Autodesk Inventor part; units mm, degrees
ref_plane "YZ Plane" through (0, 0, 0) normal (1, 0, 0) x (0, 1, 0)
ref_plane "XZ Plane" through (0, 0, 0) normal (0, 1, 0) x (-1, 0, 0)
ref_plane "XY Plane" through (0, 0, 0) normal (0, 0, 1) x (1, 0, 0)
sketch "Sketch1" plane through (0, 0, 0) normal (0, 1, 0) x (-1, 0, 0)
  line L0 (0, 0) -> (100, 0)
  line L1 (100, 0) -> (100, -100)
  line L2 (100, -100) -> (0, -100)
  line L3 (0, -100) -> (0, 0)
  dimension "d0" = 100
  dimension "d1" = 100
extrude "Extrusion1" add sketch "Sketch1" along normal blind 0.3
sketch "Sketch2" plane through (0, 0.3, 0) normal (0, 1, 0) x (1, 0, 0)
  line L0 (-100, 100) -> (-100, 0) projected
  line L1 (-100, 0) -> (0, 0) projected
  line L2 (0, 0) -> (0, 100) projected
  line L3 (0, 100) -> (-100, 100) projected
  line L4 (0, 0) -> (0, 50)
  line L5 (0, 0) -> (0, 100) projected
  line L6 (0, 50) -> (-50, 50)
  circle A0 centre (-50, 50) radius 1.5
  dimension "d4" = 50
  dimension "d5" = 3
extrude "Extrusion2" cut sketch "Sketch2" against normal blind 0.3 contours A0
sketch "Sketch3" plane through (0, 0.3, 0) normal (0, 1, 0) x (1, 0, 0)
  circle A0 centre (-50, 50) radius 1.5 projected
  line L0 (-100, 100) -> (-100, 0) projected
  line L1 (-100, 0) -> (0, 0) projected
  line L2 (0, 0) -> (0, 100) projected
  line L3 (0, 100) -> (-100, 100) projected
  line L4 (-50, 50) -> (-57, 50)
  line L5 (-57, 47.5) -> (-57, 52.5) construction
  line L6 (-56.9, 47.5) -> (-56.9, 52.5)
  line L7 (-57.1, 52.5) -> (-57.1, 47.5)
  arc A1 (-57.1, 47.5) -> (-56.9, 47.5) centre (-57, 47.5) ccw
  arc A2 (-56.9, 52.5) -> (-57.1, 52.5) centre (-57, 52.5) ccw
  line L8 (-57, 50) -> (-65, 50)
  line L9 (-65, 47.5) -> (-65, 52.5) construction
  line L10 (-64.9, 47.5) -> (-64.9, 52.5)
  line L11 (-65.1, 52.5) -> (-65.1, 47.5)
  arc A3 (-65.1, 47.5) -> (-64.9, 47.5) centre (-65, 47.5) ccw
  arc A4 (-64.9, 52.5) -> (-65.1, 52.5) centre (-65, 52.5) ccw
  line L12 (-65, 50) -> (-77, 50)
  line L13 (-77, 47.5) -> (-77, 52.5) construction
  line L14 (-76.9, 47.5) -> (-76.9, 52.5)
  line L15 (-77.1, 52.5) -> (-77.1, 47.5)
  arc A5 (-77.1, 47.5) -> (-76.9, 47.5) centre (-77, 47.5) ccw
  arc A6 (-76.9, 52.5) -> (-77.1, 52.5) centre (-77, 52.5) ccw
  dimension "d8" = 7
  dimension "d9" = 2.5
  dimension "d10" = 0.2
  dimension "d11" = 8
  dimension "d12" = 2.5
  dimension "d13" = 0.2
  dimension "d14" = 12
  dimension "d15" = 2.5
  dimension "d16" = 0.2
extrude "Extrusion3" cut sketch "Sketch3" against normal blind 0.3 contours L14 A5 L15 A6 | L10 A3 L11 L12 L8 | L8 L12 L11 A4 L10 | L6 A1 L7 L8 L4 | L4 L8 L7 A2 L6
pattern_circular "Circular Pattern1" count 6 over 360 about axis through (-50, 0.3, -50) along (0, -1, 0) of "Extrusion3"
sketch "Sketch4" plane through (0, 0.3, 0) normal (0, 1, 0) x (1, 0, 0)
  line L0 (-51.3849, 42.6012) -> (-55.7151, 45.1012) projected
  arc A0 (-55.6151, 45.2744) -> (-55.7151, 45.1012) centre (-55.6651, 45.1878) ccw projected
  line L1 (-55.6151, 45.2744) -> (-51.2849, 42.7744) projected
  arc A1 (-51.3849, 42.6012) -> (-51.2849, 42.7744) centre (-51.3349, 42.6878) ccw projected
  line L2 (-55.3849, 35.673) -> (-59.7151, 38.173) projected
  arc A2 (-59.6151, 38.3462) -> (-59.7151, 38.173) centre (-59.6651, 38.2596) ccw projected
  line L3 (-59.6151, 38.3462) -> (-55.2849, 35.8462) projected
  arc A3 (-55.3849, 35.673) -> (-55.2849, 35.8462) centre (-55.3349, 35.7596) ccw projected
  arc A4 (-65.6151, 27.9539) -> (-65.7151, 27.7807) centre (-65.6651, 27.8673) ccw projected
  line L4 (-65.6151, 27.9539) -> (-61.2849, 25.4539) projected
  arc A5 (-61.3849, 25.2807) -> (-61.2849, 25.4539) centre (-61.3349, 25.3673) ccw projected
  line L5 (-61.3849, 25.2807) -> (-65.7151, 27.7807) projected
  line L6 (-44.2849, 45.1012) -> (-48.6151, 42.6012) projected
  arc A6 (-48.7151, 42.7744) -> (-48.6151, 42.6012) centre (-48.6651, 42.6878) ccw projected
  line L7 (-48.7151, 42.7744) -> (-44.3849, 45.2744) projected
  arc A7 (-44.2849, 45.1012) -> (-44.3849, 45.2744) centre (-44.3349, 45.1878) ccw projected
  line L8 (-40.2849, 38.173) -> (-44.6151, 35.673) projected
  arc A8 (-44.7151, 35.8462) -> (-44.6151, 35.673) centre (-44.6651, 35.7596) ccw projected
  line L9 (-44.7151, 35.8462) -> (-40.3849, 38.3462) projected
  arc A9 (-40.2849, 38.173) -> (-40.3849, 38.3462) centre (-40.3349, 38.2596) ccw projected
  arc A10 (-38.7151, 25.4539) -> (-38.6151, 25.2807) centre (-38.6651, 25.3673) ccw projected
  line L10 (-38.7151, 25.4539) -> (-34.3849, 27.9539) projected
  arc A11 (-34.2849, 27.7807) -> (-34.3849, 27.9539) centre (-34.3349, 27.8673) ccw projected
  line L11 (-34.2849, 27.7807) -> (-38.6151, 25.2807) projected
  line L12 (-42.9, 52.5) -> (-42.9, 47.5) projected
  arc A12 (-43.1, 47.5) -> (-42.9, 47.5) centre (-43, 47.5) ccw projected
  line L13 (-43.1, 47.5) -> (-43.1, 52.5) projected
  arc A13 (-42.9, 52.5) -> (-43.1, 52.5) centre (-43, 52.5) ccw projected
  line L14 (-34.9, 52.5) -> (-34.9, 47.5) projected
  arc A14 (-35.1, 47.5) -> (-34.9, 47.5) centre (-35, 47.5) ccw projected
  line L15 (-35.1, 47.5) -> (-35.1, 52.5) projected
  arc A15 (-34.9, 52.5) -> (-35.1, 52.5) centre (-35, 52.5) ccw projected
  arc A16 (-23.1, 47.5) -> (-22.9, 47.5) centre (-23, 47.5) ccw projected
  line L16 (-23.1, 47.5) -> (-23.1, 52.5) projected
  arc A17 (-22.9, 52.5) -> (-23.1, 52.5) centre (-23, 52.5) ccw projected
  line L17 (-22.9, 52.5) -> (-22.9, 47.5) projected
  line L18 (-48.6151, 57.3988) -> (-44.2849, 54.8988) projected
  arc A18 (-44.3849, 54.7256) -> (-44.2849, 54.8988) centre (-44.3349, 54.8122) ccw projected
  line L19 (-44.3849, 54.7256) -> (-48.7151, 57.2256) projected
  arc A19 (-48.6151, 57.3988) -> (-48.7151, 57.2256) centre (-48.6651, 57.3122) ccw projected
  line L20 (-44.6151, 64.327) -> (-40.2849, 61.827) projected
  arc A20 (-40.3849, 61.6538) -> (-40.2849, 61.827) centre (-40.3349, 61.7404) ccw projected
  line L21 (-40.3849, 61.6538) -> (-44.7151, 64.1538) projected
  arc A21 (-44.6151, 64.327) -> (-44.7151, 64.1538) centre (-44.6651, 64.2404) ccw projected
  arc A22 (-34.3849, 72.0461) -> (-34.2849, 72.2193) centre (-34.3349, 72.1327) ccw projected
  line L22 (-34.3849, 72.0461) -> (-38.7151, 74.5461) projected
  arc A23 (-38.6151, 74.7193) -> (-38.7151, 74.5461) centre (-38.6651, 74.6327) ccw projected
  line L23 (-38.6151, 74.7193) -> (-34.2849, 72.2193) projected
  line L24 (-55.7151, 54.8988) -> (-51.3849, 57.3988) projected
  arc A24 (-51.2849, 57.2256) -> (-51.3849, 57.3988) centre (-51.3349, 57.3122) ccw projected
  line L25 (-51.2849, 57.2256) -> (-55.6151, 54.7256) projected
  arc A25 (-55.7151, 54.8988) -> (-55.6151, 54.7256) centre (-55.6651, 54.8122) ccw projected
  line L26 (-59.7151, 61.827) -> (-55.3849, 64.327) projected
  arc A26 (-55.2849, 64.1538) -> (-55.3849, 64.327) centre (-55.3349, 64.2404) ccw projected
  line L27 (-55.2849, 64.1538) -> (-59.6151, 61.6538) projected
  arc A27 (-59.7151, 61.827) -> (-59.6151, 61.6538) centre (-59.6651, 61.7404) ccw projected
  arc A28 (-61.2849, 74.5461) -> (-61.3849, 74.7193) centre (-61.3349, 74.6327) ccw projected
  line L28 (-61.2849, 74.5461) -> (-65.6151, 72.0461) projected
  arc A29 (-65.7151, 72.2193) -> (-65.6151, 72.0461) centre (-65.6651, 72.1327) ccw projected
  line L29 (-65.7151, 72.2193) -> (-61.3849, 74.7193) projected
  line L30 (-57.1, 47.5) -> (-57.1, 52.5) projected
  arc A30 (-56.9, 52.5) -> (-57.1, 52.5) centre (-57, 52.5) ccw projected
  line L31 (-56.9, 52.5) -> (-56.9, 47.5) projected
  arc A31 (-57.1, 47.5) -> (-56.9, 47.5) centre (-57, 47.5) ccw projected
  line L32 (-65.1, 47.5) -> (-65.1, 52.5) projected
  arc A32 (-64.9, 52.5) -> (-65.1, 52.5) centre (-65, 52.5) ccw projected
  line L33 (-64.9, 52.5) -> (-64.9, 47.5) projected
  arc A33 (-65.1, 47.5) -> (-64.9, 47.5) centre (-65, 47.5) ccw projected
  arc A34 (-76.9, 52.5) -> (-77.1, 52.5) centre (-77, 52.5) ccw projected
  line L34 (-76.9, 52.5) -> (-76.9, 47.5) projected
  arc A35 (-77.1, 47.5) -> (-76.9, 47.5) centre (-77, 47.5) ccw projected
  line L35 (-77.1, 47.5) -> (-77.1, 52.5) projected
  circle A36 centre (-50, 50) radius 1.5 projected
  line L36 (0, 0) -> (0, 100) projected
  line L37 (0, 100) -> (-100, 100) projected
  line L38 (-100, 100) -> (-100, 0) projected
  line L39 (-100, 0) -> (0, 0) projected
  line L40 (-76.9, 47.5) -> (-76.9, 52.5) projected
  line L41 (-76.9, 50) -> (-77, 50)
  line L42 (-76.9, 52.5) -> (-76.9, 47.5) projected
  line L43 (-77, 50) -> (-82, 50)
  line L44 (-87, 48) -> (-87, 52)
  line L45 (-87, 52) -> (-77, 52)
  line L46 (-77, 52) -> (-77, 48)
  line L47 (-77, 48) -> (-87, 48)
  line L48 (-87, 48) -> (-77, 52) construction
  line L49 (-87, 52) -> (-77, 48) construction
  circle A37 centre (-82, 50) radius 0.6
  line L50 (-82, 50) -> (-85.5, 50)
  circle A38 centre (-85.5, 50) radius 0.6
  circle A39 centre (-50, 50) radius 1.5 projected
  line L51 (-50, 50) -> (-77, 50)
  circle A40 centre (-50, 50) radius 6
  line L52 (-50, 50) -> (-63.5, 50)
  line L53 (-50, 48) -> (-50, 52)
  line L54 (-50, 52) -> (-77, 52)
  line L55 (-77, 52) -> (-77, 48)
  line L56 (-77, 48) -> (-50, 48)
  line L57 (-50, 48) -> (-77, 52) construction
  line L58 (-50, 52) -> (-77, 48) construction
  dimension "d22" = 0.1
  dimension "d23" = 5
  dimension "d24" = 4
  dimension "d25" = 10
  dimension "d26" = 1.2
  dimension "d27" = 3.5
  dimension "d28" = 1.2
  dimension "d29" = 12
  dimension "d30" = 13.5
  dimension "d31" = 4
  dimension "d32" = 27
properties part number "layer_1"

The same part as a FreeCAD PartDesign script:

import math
import FreeCAD as App
import Part
import Sketcher
from FreeCAD import Vector
Q = App.Units.Quantity

doc = App.newDocument("Part")
body = doc.addObject("PartDesign::Body", "Body")

# Sketch on XZ plane
sketch1 = body.newObject("Sketcher::SketchObject", "Sketch")
sketch1.AttachmentSupport = (doc.getObject("XZ_Plane"), [""])
sketch1.MapMode = "FlatFace"
sketch1.addGeometry(Part.LineSegment(Vector(-100, 0, 0), Vector(0, 0, 0)), False)
sketch1.addGeometry(Part.LineSegment(Vector(0, 0, 0), Vector(0, -100, 0)), False)
sketch1.addGeometry(Part.LineSegment(Vector(0, -100, 0), Vector(-100, -100, 0)), False)
sketch1.addGeometry(Part.LineSegment(Vector(-100, -100, 0), Vector(-100, 0, 0)), False)
sketch1.addConstraint(Sketcher.Constraint("Coincident", 0, 2, 1, 1))
sketch1.addConstraint(Sketcher.Constraint("Coincident", 1, 2, 2, 1))
sketch1.addConstraint(Sketcher.Constraint("Coincident", 2, 2, 3, 1))
sketch1.addConstraint(Sketcher.Constraint("Coincident", 3, 2, 0, 1))
sketch1.addConstraint(Sketcher.Constraint("Horizontal", 0))
sketch1.addConstraint(Sketcher.Constraint("Vertical", 1))
sketch1.addConstraint(Sketcher.Constraint("Horizontal", 2))
sketch1.addConstraint(Sketcher.Constraint("Vertical", 3))
sketch1.addConstraint(Sketcher.Constraint("Coincident", 0, 2, -1, 1))
sketch1.addConstraint(Sketcher.Constraint("Equal", 2, 1))
sketch1.addConstraint(Sketcher.Constraint("DistanceX", 0, 1, 0, 2, Q("100 mm")))
pad1 = body.newObject("PartDesign::Pad", "Pad")
pad1.Profile = sketch1
pad1.Length = 0.3
pad1.Reversed = True

# Sketch on XZ plane
sketch2 = body.newObject("Sketcher::SketchObject", "Sketch001")
sketch2.AttachmentSupport = (doc.getObject("XZ_Plane"), [""])
sketch2.MapMode = "FlatFace"
sketch2.AttachmentOffset = App.Placement(Vector(0, 0, -0.3), App.Rotation())
sketch2.addGeometry(Part.Circle(Vector(-50, -50, 0), Vector(0, 0, 1), 1.5), False)
sketch2.addConstraint(Sketcher.Constraint("Diameter", 0, Q("3 mm")))
sketch2.addConstraint(Sketcher.Constraint("DistanceX", 0, 3, -1, 1, Q("50 mm")))
sketch2.addConstraint(Sketcher.Constraint("DistanceY", 0, 3, -1, 1, Q("50 mm")))
pocket1 = body.newObject("PartDesign::Pocket", "Pocket")
pocket1.Profile = sketch2
pocket1.Length = 0.3
pocket1.Reversed = True

# Sketch on XZ plane
sketch3 = body.newObject("Sketcher::SketchObject", "Sketch002")
sketch3.AttachmentSupport = (doc.getObject("XZ_Plane"), [""])
sketch3.MapMode = "FlatFace"
sketch3.AttachmentOffset = App.Placement(Vector(0, 0, -0.3), App.Rotation())
sketch3.addGeometry(Part.LineSegment(Vector(-76.9, -47.5, 0), Vector(-76.9, -52.5, 0)), False)
sketch3.addGeometry(Part.ArcOfCircle(Part.Circle(Vector(-77, -52.5, 0), Vector(0, 0, 1), 0.1), math.radians(180), math.radians(360)), False)
sketch3.addGeometry(Part.LineSegment(Vector(-77.1, -52.5, 0), Vector(-77.1, -47.5, 0)), False)
sketch3.addGeometry(Part.ArcOfCircle(Part.Circle(Vector(-77, -47.5, 0), Vector(0, 0, 1), 0.1), math.radians(0), math.radians(180)), False)
sketch3.addGeometry(Part.LineSegment(Vector(-64.9, -47.5, 0), Vector(-64.9, -52.5, 0)), False)
sketch3.addGeometry(Part.ArcOfCircle(Part.Circle(Vector(-65, -52.5, 0), Vector(0, 0, 1), 0.1), math.radians(180), math.radians(360)), False)
sketch3.addGeometry(Part.LineSegment(Vector(-65.1, -52.5, 0), Vector(-65.1, -47.5, 0)), False)
sketch3.addGeometry(Part.ArcOfCircle(Part.Circle(Vector(-65, -47.5, 0), Vector(0, 0, 1), 0.1), math.radians(0), math.radians(180)), False)
sketch3.addGeometry(Part.LineSegment(Vector(-56.9, -47.5, 0), Vector(-56.9, -52.5, 0)), False)
sketch3.addGeometry(Part.ArcOfCircle(Part.Circle(Vector(-57, -52.5, 0), Vector(0, 0, 1), 0.1), math.radians(180), math.radians(360)), False)
sketch3.addGeometry(Part.LineSegment(Vector(-57.1, -52.5, 0), Vector(-57.1, -47.5, 0)), False)
sketch3.addGeometry(Part.ArcOfCircle(Part.Circle(Vector(-57, -47.5, 0), Vector(0, 0, 1), 0.1), math.radians(0), math.radians(180)), False)
sketch3.addConstraint(Sketcher.Constraint("Tangent", 0, 2, 1, 2))
sketch3.addConstraint(Sketcher.Constraint("Tangent", 1, 1, 2, 1))
sketch3.addConstraint(Sketcher.Constraint("Tangent", 2, 2, 3, 2))
sketch3.addConstraint(Sketcher.Constraint("Tangent", 3, 1, 0, 1))
sketch3.addConstraint(Sketcher.Constraint("Tangent", 4, 2, 5, 2))
sketch3.addConstraint(Sketcher.Constraint("Tangent", 5, 1, 6, 1))
sketch3.addConstraint(Sketcher.Constraint("Tangent", 6, 2, 7, 2))
sketch3.addConstraint(Sketcher.Constraint("Tangent", 7, 1, 4, 1))
sketch3.addConstraint(Sketcher.Constraint("Tangent", 8, 2, 9, 2))
sketch3.addConstraint(Sketcher.Constraint("Tangent", 9, 1, 10, 1))
sketch3.addConstraint(Sketcher.Constraint("Tangent", 10, 2, 11, 2))
sketch3.addConstraint(Sketcher.Constraint("Tangent", 11, 1, 8, 1))
sketch3.addConstraint(Sketcher.Constraint("Vertical", 0))
sketch3.addConstraint(Sketcher.Constraint("Vertical", 2))
sketch3.addConstraint(Sketcher.Constraint("Vertical", 4))
sketch3.addConstraint(Sketcher.Constraint("Vertical", 6))
sketch3.addConstraint(Sketcher.Constraint("Vertical", 8))
sketch3.addConstraint(Sketcher.Constraint("Vertical", 10))
sketch3.addConstraint(Sketcher.Constraint("Equal", 3, 5))
sketch3.addConstraint(Sketcher.Constraint("Equal", 7, 9))
sketch3.addConstraint(Sketcher.Constraint("Horizontal", 1, 3, 5, 3))
sketch3.addConstraint(Sketcher.Constraint("Horizontal", 3, 3, 7, 3))
sketch3.addConstraint(Sketcher.Constraint("Horizontal", 5, 3, 9, 3))
sketch3.addConstraint(Sketcher.Constraint("Horizontal", 7, 3, 11, 3))
sketch3.addConstraint(Sketcher.Constraint("Radius", 1, Q("0.1 mm")))
sketch3.addConstraint(Sketcher.Constraint("DistanceX", 1, 3, 5, 3, Q("12 mm")))
sketch3.addConstraint(Sketcher.Constraint("DistanceX", 5, 3, 9, 3, Q("8 mm")))
sketch3.addConstraint(Sketcher.Constraint("DistanceY", 0, 2, 0, 1, Q("5 mm")))
sketch3.addConstraint(Sketcher.Constraint("DistanceX", 1, 3, -1, 1, Q("77 mm")))
sketch3.addConstraint(Sketcher.Constraint("DistanceY", 1, 3, -1, 1, Q("52.5 mm")))
pocket2 = body.newObject("PartDesign::Pocket", "Pocket001")
pocket2.Profile = sketch3
pocket2.Length = 0.3
pocket2.Reversed = True
doc.recompute()

datumline = body.newObject("PartDesign::Line", "DatumLine")
datumline.Placement = App.Placement(Vector(-50, 0, -50), App.Rotation(Vector(0, 0, 1), Vector(0, 1, 0)))
polarpattern = body.newObject("PartDesign::PolarPattern", "PolarPattern")
polarpattern.Originals = [pocket2]
polarpattern.Axis = (datumline, [""])
polarpattern.Angle = 360
polarpattern.Occurrences = 6
body.Tip = polarpattern

doc.recompute()
